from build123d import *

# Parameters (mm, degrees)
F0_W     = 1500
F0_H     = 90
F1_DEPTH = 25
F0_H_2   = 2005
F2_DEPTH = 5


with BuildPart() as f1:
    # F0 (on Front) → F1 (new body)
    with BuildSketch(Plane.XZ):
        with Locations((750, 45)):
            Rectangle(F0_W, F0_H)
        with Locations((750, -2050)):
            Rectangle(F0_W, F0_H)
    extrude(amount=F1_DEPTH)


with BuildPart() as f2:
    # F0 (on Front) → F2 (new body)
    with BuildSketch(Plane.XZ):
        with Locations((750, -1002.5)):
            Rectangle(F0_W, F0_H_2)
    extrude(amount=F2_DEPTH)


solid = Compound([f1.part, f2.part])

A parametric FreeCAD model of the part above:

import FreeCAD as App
import Part
import Sketcher

doc = App.newDocument("Part")
body = doc.addObject("PartDesign::Body", "Body")
body.AllowCompound = True

sketch1 = doc.addObject("Sketcher::SketchObject", "Sketch")
body.addObject(sketch1)
sketch1.AttachmentSupport = (doc.XZ_Plane, [""])
sketch1.MapMode = "FlatFace"
sketch1.addGeometry([
    Part.LineSegment(App.Vector(0, 90, 0), App.Vector(0, 0, 0)),
    Part.LineSegment(App.Vector(0, 0, 0), App.Vector(1500, 0, 0)),
    Part.LineSegment(App.Vector(1500, 0, 0), App.Vector(1500, 90, 0)),
    Part.LineSegment(App.Vector(1500, 90, 0), App.Vector(0, 90, 0)),
    Part.LineSegment(App.Vector(0, -2005, 0), App.Vector(0, -2095, 0)),
    Part.LineSegment(App.Vector(0, -2095, 0), App.Vector(1500, -2095, 0)),
    Part.LineSegment(App.Vector(1500, -2095, 0), App.Vector(1500, -2005, 0)),
    Part.LineSegment(App.Vector(1500, -2005, 0), App.Vector(0, -2005, 0)),
], False)
sketch1.addConstraint([
    Sketcher.Constraint("Coincident", 0, 2, 1, 1),
    Sketcher.Constraint("Coincident", 1, 2, 2, 1),
    Sketcher.Constraint("Coincident", 2, 2, 3, 1),
    Sketcher.Constraint("Coincident", 3, 2, 0, 1),
    Sketcher.Constraint("Coincident", 4, 2, 5, 1),
    Sketcher.Constraint("Coincident", 5, 2, 6, 1),
    Sketcher.Constraint("Coincident", 6, 2, 7, 1),
    Sketcher.Constraint("Coincident", 7, 2, 4, 1),
    Sketcher.Constraint("Vertical", 0),
    Sketcher.Constraint("Horizontal", 1),
    Sketcher.Constraint("Vertical", 2),
    Sketcher.Constraint("Horizontal", 3),
    Sketcher.Constraint("Vertical", 4),
    Sketcher.Constraint("Horizontal", 5),
    Sketcher.Constraint("Vertical", 6),
    Sketcher.Constraint("Horizontal", 7),
    Sketcher.Constraint("Coincident", 0, 2, -1, 1),
    Sketcher.Constraint("PointOnObject", 4, 2, -2),
    Sketcher.Constraint("Vertical", 2, 2, 5, 2),
    Sketcher.Constraint("Equal", 2, 4),
    Sketcher.Constraint("DistanceX", 1, 1, 1, 2, 1500.0),
    Sketcher.Constraint("DistanceY", 0, 2, 0, 1, 90.0),
    Sketcher.Constraint("DistanceY", 4, 2, -1, 1, 2095.0),
])
pad1 = doc.addObject("PartDesign::Pad", "Pad")
body.addObject(pad1)
pad1.Profile = sketch1
pad1.Length = 25
body2 = doc.addObject("PartDesign::Body", "Body001")

sketch2 = doc.addObject("Sketcher::SketchObject", "Sketch001")
body2.addObject(sketch2)
sketch2.AttachmentSupport = (doc.getObject("XZ_Plane001"), [""])
sketch2.MapMode = "FlatFace"
sketch2.addGeometry([
    Part.LineSegment(App.Vector(0, 0, 0), App.Vector(0, -2005, 0)),
    Part.LineSegment(App.Vector(0, -2005, 0), App.Vector(1500, -2005, 0)),
    Part.LineSegment(App.Vector(1500, -2005, 0), App.Vector(1500, 0, 0)),
    Part.LineSegment(App.Vector(1500, 0, 0), App.Vector(0, 0, 0)),
], False)
sketch2.addConstraint([
    Sketcher.Constraint("Coincident", 0, 2, 1, 1),
    Sketcher.Constraint("Coincident", 1, 2, 2, 1),
    Sketcher.Constraint("Coincident", 2, 2, 3, 1),
    Sketcher.Constraint("Coincident", 3, 2, 0, 1),
    Sketcher.Constraint("Vertical", 0),
    Sketcher.Constraint("Horizontal", 1),
    Sketcher.Constraint("Vertical", 2),
    Sketcher.Constraint("Horizontal", 3),
    Sketcher.Constraint("Coincident", 3, 2, -1, 1),
    Sketcher.Constraint("DistanceX", 1, 1, 1, 2, 1500.0),
    Sketcher.Constraint("DistanceY", 0, 2, 0, 1, 2005.0),
])
pad2 = doc.addObject("PartDesign::Pad", "Pad001")
body2.addObject(pad2)
pad2.Profile = sketch2
pad2.Length = 5

doc.recompute()
